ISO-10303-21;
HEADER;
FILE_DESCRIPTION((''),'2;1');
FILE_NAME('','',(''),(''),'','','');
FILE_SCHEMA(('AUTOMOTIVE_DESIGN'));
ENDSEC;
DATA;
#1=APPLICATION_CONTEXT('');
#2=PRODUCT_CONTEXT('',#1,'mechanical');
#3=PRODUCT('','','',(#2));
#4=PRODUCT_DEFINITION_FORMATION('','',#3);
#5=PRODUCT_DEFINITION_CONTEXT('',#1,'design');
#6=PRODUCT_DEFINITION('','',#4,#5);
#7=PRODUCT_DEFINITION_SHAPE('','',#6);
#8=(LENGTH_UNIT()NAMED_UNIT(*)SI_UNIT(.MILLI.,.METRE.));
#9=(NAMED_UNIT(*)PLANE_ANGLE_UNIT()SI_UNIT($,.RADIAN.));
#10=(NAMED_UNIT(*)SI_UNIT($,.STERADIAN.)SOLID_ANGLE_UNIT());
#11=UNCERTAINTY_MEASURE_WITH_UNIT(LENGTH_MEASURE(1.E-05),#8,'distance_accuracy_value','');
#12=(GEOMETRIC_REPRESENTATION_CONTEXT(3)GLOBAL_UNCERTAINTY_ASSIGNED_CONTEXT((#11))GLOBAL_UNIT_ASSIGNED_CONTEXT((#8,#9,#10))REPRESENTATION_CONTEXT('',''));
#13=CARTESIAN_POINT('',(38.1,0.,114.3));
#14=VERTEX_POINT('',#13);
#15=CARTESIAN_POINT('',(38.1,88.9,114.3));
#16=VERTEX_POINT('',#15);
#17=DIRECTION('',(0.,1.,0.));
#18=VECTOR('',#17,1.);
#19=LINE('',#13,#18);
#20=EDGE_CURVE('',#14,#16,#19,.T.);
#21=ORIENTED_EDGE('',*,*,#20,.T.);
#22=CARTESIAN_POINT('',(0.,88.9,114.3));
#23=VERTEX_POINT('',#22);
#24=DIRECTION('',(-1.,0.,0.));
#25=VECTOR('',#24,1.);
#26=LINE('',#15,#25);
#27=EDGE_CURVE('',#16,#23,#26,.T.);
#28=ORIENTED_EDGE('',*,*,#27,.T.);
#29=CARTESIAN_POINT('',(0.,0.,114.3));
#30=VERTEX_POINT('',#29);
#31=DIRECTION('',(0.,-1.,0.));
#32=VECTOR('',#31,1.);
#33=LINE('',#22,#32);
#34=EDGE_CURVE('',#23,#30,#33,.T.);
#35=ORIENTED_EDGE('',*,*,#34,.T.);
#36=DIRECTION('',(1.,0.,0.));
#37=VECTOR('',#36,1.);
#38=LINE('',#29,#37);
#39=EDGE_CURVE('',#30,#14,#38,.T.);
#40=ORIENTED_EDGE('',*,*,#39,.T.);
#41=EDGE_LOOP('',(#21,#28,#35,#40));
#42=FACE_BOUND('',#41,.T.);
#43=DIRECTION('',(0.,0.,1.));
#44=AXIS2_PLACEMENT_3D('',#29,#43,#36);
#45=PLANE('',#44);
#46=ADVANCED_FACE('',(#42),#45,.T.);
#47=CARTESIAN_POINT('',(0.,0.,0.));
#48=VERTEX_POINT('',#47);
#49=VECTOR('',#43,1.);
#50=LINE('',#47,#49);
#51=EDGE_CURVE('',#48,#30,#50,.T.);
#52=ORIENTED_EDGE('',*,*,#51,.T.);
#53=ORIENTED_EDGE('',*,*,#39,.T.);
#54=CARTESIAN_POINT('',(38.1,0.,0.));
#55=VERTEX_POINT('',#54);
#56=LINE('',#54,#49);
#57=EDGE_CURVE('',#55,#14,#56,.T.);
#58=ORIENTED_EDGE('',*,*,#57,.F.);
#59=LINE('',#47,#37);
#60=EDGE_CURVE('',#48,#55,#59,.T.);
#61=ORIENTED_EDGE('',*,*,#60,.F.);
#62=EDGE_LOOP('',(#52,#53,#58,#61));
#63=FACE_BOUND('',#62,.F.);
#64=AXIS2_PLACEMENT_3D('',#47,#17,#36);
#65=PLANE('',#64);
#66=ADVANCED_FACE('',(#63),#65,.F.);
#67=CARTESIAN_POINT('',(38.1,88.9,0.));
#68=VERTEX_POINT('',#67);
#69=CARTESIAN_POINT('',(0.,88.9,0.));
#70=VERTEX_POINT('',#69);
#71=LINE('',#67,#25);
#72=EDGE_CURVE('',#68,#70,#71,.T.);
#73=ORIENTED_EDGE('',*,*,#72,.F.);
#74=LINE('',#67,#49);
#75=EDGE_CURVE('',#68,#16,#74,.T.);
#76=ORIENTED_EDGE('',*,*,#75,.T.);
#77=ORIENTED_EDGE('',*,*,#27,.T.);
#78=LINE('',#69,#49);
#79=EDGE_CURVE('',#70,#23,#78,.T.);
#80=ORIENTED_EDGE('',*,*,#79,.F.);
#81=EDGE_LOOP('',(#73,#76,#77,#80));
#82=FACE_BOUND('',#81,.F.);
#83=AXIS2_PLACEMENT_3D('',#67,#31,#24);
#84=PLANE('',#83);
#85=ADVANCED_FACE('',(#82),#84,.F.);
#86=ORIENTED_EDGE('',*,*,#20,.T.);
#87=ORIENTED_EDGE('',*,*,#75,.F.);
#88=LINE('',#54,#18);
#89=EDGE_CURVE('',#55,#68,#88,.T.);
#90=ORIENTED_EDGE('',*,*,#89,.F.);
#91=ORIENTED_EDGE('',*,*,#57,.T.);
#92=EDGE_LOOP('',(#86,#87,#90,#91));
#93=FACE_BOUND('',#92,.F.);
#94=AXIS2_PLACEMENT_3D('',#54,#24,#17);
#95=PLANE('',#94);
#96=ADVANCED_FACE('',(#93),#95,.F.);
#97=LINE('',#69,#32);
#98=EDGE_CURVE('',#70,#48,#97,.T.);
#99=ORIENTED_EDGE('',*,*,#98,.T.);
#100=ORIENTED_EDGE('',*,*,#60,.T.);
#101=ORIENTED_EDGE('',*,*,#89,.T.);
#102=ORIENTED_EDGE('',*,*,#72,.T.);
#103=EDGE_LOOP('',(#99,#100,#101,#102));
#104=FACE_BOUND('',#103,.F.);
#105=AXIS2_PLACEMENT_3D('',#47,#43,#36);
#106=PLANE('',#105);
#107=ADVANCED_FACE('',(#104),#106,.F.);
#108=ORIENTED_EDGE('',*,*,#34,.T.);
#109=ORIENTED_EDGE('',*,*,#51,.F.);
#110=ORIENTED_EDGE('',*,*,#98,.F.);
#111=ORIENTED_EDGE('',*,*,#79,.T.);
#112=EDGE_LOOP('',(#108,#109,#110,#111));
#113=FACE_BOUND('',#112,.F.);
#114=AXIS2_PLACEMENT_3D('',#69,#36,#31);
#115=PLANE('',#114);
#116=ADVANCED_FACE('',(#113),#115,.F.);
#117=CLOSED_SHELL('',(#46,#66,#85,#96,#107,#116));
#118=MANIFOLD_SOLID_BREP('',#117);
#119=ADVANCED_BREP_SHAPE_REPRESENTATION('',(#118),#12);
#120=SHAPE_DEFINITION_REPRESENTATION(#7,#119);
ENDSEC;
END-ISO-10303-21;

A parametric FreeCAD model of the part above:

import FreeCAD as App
import Part
import Sketcher

V = App.Vector
Q = App.Units.Quantity

doc = App.newDocument("Part")
params = doc.addObject("Spreadsheet::Sheet", "Params")
for row, (alias, value) in enumerate([
    ("sketch1_width", "1.5 in"),
    ("sketch1_height", "3.5 in"),
    ("pad1_length", "4.5 in"),
], start=1):
    params.set(f"A{row}", alias)
    params.set(f"B{row}", "=" + value)
    params.setAlias(f"B{row}", alias)

body = doc.addObject("PartDesign::Body", "Body")

sketch1 = doc.addObject("Sketcher::SketchObject", "Sketch")
body.addObject(sketch1)
sketch1.AttachmentSupport = (doc.XY_Plane, [""])
sketch1.MapMode = "FlatFace"
sketch1.addGeometry(Part.LineSegment(V(0, 89, 0), V(0, 0, 0)), False)
sketch1.addGeometry(Part.LineSegment(V(0, 0, 0), V(38, 0, 0)), False)
sketch1.addGeometry(Part.LineSegment(V(38, 0, 0), V(38, 89, 0)), False)
sketch1.addGeometry(Part.LineSegment(V(38, 89, 0), V(0, 89, 0)), False)
sketch1.addConstraint(Sketcher.Constraint("Coincident", 0, 2, 1, 1))
sketch1.addConstraint(Sketcher.Constraint("Coincident", 1, 2, 2, 1))
sketch1.addConstraint(Sketcher.Constraint("Coincident", 2, 2, 3, 1))
sketch1.addConstraint(Sketcher.Constraint("Coincident", 3, 2, 0, 1))
sketch1.addConstraint(Sketcher.Constraint("Vertical", 0))
sketch1.addConstraint(Sketcher.Constraint("Horizontal", 1))
sketch1.addConstraint(Sketcher.Constraint("Vertical", 2))
sketch1.addConstraint(Sketcher.Constraint("Horizontal", 3))
sketch1.addConstraint(Sketcher.Constraint("Coincident", 0, 2, -1, 1))
sketch1.addConstraint(Sketcher.Constraint("DistanceX", 1, 1, 1, 2, Q("1.5 in")))
sketch1.addConstraint(Sketcher.Constraint("DistanceY", 0, 2, 0, 1, Q("3.5 in")))
sketch1.setExpression("Constraints[9]", "Params.sketch1_width")
sketch1.setExpression("Constraints[10]", "Params.sketch1_height")
pad1 = doc.addObject("PartDesign::Pad", "Pad")
body.addObject(pad1)
pad1.Profile = sketch1
pad1.setExpression("Length", "Params.pad1_length")

doc.recompute()
